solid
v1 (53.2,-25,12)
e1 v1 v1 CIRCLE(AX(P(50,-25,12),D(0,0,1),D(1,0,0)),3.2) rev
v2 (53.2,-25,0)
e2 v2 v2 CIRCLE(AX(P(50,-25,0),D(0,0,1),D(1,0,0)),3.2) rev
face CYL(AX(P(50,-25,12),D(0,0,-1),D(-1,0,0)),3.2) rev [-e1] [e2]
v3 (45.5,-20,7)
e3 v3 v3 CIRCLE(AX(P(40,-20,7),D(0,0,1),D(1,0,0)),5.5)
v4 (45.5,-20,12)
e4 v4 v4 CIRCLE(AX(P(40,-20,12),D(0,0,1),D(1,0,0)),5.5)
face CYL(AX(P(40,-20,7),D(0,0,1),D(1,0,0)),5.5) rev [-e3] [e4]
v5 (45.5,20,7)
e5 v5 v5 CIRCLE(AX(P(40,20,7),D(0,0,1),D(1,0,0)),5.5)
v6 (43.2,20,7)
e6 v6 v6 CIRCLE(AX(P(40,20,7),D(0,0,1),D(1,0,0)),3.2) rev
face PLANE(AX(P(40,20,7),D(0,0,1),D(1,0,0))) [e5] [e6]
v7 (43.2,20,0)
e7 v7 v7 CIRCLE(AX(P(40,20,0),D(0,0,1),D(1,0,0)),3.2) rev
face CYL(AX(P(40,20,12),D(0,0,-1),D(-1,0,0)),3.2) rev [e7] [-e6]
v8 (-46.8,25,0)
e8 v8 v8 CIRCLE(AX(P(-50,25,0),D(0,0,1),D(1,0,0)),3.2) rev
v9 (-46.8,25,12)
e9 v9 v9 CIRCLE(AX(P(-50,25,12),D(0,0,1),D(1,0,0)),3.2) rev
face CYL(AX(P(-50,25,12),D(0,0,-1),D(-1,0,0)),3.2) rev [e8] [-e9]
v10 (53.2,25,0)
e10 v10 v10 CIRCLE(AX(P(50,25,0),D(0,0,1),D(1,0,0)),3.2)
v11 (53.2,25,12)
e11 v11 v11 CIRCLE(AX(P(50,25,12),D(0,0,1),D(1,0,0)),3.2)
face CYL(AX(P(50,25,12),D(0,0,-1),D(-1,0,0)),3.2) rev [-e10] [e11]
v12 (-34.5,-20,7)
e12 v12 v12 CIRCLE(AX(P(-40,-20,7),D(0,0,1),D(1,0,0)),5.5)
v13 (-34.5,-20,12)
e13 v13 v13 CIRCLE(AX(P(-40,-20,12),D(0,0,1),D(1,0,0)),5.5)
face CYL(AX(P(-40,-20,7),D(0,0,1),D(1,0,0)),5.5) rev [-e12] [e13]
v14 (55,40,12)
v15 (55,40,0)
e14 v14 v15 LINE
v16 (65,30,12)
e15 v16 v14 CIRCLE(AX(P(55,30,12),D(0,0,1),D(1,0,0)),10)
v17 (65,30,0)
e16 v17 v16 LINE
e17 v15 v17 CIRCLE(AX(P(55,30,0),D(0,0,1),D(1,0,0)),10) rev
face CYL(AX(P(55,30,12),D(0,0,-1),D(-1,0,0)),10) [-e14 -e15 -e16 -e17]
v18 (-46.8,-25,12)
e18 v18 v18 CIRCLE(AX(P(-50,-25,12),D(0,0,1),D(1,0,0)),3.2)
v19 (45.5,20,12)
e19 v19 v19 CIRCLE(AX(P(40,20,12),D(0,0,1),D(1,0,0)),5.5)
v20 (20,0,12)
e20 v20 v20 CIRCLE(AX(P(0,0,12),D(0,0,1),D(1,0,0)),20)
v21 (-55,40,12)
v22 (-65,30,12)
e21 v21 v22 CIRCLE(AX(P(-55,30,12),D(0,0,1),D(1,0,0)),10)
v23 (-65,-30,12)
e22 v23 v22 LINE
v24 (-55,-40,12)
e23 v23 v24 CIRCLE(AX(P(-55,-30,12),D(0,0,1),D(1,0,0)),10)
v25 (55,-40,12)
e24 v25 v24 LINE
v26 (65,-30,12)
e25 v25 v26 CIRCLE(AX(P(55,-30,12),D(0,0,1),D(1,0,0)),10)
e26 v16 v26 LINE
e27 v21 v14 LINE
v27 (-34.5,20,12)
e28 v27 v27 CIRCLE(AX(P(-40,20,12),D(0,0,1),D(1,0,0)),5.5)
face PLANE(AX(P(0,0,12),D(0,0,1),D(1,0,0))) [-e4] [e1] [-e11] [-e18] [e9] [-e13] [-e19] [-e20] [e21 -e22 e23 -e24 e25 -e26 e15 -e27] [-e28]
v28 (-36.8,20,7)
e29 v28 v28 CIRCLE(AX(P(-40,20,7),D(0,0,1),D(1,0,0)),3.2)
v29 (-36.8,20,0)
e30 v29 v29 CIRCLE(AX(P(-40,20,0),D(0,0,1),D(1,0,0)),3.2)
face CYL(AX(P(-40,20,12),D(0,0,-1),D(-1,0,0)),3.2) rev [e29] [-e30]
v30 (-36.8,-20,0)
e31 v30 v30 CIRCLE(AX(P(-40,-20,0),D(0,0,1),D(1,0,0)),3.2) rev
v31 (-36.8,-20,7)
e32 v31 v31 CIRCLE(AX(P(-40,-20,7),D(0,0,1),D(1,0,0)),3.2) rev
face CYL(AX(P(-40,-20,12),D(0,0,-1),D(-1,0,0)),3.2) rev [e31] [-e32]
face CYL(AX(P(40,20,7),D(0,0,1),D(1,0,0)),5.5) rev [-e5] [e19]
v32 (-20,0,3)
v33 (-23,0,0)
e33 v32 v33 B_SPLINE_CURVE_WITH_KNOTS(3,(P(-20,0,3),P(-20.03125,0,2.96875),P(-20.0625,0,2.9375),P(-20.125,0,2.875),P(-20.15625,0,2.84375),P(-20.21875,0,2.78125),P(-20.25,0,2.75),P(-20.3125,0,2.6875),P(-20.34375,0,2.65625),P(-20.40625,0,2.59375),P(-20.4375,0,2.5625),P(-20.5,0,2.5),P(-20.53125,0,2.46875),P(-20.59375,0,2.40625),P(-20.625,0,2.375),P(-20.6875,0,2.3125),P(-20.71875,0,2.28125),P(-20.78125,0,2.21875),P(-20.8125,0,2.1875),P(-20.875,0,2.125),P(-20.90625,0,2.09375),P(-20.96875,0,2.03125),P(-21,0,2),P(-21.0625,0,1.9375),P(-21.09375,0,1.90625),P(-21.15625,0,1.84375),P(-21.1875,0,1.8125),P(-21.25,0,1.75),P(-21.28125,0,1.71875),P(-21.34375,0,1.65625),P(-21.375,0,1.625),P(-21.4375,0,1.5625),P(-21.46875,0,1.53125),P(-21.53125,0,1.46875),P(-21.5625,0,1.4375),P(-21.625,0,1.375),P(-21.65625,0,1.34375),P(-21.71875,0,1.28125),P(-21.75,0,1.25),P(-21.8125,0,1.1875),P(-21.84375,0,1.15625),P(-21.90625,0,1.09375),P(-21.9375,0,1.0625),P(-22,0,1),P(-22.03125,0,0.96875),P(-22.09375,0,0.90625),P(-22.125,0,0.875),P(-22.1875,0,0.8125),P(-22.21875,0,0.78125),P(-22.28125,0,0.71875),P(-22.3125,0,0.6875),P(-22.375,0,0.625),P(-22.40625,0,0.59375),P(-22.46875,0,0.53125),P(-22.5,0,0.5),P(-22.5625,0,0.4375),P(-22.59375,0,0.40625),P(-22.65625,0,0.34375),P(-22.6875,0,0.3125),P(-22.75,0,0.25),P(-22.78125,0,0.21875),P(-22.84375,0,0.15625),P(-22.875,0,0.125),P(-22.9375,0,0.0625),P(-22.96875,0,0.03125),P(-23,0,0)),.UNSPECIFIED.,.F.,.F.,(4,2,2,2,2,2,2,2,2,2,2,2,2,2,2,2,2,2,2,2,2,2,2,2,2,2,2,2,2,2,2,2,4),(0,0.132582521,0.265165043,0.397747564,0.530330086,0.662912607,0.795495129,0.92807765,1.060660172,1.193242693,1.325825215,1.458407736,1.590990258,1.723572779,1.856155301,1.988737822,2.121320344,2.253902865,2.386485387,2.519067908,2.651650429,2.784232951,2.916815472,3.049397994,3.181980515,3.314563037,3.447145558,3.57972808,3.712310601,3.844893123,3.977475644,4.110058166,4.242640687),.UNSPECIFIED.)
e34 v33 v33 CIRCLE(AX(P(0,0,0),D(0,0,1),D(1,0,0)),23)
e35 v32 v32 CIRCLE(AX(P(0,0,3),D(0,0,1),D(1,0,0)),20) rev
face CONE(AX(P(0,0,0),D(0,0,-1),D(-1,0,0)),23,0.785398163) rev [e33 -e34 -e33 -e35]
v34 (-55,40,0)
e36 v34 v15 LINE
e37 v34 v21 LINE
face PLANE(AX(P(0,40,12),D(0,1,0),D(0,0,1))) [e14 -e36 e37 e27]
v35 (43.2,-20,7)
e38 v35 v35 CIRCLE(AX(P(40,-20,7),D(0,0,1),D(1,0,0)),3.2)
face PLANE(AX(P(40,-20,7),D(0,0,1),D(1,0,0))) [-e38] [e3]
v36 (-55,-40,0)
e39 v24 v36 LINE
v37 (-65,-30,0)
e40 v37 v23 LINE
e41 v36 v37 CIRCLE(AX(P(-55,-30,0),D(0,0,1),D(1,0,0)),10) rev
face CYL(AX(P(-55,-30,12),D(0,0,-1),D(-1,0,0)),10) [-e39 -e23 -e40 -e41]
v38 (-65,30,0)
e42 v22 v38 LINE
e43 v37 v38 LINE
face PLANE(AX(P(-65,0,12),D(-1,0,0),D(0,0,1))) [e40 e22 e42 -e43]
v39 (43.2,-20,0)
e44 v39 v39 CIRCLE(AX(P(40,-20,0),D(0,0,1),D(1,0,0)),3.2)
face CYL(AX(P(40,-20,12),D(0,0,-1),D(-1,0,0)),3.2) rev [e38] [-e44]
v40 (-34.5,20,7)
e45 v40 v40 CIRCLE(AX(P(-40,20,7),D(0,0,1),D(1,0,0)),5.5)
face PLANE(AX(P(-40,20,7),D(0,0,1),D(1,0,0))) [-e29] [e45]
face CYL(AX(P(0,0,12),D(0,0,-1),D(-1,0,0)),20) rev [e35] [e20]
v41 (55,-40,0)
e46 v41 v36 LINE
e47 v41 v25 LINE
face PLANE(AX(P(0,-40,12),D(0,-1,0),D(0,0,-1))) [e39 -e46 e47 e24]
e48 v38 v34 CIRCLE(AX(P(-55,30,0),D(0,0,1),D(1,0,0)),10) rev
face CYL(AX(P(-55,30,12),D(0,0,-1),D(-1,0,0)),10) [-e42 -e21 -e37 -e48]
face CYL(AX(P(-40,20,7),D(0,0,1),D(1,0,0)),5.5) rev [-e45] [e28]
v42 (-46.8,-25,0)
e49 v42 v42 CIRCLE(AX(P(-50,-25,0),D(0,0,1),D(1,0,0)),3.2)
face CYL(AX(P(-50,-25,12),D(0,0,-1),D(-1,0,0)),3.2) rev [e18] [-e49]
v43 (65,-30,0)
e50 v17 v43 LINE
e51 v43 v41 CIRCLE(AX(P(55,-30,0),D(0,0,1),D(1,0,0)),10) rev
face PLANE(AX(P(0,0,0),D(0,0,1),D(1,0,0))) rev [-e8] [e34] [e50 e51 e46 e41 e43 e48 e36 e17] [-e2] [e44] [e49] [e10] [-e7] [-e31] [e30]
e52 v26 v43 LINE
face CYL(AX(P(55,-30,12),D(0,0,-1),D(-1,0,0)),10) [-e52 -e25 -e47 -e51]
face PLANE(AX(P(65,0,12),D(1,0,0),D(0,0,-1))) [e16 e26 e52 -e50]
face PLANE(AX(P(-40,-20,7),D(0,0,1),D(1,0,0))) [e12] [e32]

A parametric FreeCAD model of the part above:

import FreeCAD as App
import Part
import Sketcher
from FreeCAD import Vector


def edges_at(feature, points):
    """Names of the edges that pass closest to the given points."""
    edges = feature.Shape.Edges
    near = lambda p: min(range(len(edges)), key=lambda i: edges[i].distToShape(Part.Vertex(*p))[0])
    return sorted({f"Edge{near(p) + 1}" for p in points})


def add_polygon(sketch, points):
    """Adds a closed chain of lines whose ends are joined by coincident constraints."""
    first, n = sketch.GeometryCount, len(points)
    for a, b in zip(points, points[1:] + points[:1]):
        sketch.addGeometry(Part.LineSegment(App.Vector(*a, 0), App.Vector(*b, 0)), False)
    for i in range(n):
        sketch.addConstraint(Sketcher.Constraint("Coincident", first + i, 2, first + (i + 1) % n, 1))

doc = App.newDocument("Part")
params = doc.addObject("Spreadsheet::Sheet", "Params")
for row, (alias, value) in enumerate([
    ("sketch1_diameter", "40 mm"),
    ("sketch1_diameter2", "6.4 mm"),
    ("sketch1_width", "130 mm"),
    ("sketch1_height", "80 mm"),
    ("pad1_length", "12 mm"),
    ("fillet_radius", "10 mm"),
    ("chamfer_size", "3 mm"),
    ("sketch2_diameter", "11 mm"),
    ("pocket1_length", "5 mm"),
], start=1):
    params.set(f"A{row}", alias)
    params.set(f"B{row}", "=" + value)
    params.setAlias(f"B{row}", alias)

body = doc.addObject("PartDesign::Body", "Body")

# Sketch on XY plane
sketch1 = body.newObject("Sketcher::SketchObject", "Sketch")
sketch1.AttachmentSupport = (doc.getObject("XY_Plane"), [""])
sketch1.MapMode = "FlatFace"
add_polygon(sketch1, [(-65, 40), (-65, -40), (65, -40), (65, 40)])  # lines 0-3
sketch1.addGeometry(Part.Circle(Vector(-50, -25, 0), Vector(0, 0, 1), 3.2), False)  # 4
sketch1.addGeometry(Part.Circle(Vector(-40, -20, 0), Vector(0, 0, 1), 3.2), False)  # 5
sketch1.addGeometry(Part.Circle(Vector(50, -25, 0), Vector(0, 0, 1), 3.2), False)  # 6
sketch1.addGeometry(Part.Circle(Vector(40, -20, 0), Vector(0, 0, 1), 3.2), False)  # 7
sketch1.addGeometry(Part.Circle(Vector(-40, 20, 0), Vector(0, 0, 1), 3.2), False)  # 8
sketch1.addGeometry(Part.Circle(Vector(-50, 25, 0), Vector(0, 0, 1), 3.2), False)  # 9
sketch1.addGeometry(Part.Circle(Vector(0, 0, 0), Vector(0, 0, 1), 20), False)  # 10
sketch1.addGeometry(Part.Circle(Vector(40, 20, 0), Vector(0, 0, 1), 3.2), False)  # 11
sketch1.addGeometry(Part.Circle(Vector(50, 25, 0), Vector(0, 0, 1), 3.2), False)  # 12
sketch1.addConstraint([
    Sketcher.Constraint("Vertical", 0),
    Sketcher.Constraint("Horizontal", 1),
    Sketcher.Constraint("Vertical", 2),
    Sketcher.Constraint("Horizontal", 3),
    Sketcher.Constraint("Coincident", 10, 3, -1, 1),
    Sketcher.Constraint("Equal", 4, 5),
    Sketcher.Constraint("Equal", 5, 6),
    Sketcher.Constraint("Equal", 6, 7),
    Sketcher.Constraint("Equal", 7, 8),
    Sketcher.Constraint("Equal", 8, 9),
    Sketcher.Constraint("Equal", 9, 11),
    Sketcher.Constraint("Equal", 11, 12),
    Sketcher.Constraint("Symmetric", 7, 3, 8, 3, -1, 1),
    Sketcher.Constraint("Symmetric", 6, 3, 9, 3, -1, 1),
    Sketcher.Constraint("Symmetric", 5, 3, 11, 3, -1, 1),
    Sketcher.Constraint("Symmetric", 4, 3, 12, 3, -1, 1),
    Sketcher.Constraint("Symmetric", 0, 2, 2, 2, -1, 1),
    Sketcher.Constraint("Symmetric", 4, 3, 6, 3, -2),
    Sketcher.Constraint("Symmetric", 5, 3, 7, 3, -2),
    Sketcher.Constraint("Diameter", 10, 40.0),
    Sketcher.Constraint("Diameter", 4, 6.4),
    Sketcher.Constraint("DistanceX", 1, 1, 1, 2, 130.0),
    Sketcher.Constraint("DistanceY", 0, 2, 0, 1, 80.0),
    Sketcher.Constraint("DistanceX", 4, 3, -1, 1, 50.0),
    Sketcher.Constraint("DistanceY", 4, 3, -1, 1, 25.0),
    Sketcher.Constraint("DistanceX", 5, 3, -1, 1, 40.0),
    Sketcher.Constraint("DistanceY", 5, 3, -1, 1, 20.0),
])
sketch1.setExpression("Constraints[23]", "Params.sketch1_diameter")
sketch1.setExpression("Constraints[24]", "Params.sketch1_diameter2")
sketch1.setExpression("Constraints[25]", "Params.sketch1_width")
sketch1.setExpression("Constraints[26]", "Params.sketch1_height")
pad1 = body.newObject("PartDesign::Pad", "Pad")
pad1.Profile = sketch1
pad1.setExpression("Length", "Params.pad1_length")
doc.recompute()

fillet = body.newObject("PartDesign::Fillet", "Fillet")
fillet.Base = (pad1, edges_at(pad1, [
    (-65, -40, 6),
    (-65, 40, 6),
    (65, 40, 6),
    (65, -40, 6),
]))
fillet.setExpression("Radius", "Params.fillet_radius")
doc.recompute()

chamfer = body.newObject("PartDesign::Chamfer", "Chamfer")
chamfer.Base = (fillet, edges_at(fillet, [(-20, 0, 0)]))
chamfer.setExpression("Size", "Params.chamfer_size")

# Sketch on XY plane
sketch2 = body.newObject("Sketcher::SketchObject", "Sketch001")
sketch2.AttachmentSupport = (doc.getObject("XY_Plane"), [""])
sketch2.MapMode = "FlatFace"
sketch2.AttachmentOffset = App.Placement(Vector(0, 0, 12), App.Rotation())
sketch2.addGeometry([
    Part.Circle(Vector(-40, 20, 0), Vector(0, 0, 1), 5.5),
    Part.Circle(Vector(-40, -20, 0), Vector(0, 0, 1), 5.5),
    Part.Circle(Vector(40, 20, 0), Vector(0, 0, 1), 5.5),
    Part.Circle(Vector(40, -20, 0), Vector(0, 0, 1), 5.5),
], False)
sketch2.addConstraint([
    Sketcher.Constraint("Equal", 0, 1),
    Sketcher.Constraint("Equal", 1, 2),
    Sketcher.Constraint("Equal", 2, 3),
    Sketcher.Constraint("Symmetric", 1, 3, 2, 3, -1, 1),
    Sketcher.Constraint("Symmetric", 0, 3, 3, 3, -1, 1),
    Sketcher.Constraint("Symmetric", 0, 3, 2, 3, -2),
    Sketcher.Constraint("Diameter", 0, 11.0),
    Sketcher.Constraint("DistanceX", 0, 3, -1, 1, 40.0),
    Sketcher.Constraint("DistanceY", -1, 1, 0, 3, 20.0),
])
sketch2.setExpression("Constraints[6]", "Params.sketch2_diameter")
pocket1 = body.newObject("PartDesign::Pocket", "Pocket")
pocket1.Profile = sketch2
pocket1.setExpression("Length", "Params.pocket1_length")

doc.recompute()
